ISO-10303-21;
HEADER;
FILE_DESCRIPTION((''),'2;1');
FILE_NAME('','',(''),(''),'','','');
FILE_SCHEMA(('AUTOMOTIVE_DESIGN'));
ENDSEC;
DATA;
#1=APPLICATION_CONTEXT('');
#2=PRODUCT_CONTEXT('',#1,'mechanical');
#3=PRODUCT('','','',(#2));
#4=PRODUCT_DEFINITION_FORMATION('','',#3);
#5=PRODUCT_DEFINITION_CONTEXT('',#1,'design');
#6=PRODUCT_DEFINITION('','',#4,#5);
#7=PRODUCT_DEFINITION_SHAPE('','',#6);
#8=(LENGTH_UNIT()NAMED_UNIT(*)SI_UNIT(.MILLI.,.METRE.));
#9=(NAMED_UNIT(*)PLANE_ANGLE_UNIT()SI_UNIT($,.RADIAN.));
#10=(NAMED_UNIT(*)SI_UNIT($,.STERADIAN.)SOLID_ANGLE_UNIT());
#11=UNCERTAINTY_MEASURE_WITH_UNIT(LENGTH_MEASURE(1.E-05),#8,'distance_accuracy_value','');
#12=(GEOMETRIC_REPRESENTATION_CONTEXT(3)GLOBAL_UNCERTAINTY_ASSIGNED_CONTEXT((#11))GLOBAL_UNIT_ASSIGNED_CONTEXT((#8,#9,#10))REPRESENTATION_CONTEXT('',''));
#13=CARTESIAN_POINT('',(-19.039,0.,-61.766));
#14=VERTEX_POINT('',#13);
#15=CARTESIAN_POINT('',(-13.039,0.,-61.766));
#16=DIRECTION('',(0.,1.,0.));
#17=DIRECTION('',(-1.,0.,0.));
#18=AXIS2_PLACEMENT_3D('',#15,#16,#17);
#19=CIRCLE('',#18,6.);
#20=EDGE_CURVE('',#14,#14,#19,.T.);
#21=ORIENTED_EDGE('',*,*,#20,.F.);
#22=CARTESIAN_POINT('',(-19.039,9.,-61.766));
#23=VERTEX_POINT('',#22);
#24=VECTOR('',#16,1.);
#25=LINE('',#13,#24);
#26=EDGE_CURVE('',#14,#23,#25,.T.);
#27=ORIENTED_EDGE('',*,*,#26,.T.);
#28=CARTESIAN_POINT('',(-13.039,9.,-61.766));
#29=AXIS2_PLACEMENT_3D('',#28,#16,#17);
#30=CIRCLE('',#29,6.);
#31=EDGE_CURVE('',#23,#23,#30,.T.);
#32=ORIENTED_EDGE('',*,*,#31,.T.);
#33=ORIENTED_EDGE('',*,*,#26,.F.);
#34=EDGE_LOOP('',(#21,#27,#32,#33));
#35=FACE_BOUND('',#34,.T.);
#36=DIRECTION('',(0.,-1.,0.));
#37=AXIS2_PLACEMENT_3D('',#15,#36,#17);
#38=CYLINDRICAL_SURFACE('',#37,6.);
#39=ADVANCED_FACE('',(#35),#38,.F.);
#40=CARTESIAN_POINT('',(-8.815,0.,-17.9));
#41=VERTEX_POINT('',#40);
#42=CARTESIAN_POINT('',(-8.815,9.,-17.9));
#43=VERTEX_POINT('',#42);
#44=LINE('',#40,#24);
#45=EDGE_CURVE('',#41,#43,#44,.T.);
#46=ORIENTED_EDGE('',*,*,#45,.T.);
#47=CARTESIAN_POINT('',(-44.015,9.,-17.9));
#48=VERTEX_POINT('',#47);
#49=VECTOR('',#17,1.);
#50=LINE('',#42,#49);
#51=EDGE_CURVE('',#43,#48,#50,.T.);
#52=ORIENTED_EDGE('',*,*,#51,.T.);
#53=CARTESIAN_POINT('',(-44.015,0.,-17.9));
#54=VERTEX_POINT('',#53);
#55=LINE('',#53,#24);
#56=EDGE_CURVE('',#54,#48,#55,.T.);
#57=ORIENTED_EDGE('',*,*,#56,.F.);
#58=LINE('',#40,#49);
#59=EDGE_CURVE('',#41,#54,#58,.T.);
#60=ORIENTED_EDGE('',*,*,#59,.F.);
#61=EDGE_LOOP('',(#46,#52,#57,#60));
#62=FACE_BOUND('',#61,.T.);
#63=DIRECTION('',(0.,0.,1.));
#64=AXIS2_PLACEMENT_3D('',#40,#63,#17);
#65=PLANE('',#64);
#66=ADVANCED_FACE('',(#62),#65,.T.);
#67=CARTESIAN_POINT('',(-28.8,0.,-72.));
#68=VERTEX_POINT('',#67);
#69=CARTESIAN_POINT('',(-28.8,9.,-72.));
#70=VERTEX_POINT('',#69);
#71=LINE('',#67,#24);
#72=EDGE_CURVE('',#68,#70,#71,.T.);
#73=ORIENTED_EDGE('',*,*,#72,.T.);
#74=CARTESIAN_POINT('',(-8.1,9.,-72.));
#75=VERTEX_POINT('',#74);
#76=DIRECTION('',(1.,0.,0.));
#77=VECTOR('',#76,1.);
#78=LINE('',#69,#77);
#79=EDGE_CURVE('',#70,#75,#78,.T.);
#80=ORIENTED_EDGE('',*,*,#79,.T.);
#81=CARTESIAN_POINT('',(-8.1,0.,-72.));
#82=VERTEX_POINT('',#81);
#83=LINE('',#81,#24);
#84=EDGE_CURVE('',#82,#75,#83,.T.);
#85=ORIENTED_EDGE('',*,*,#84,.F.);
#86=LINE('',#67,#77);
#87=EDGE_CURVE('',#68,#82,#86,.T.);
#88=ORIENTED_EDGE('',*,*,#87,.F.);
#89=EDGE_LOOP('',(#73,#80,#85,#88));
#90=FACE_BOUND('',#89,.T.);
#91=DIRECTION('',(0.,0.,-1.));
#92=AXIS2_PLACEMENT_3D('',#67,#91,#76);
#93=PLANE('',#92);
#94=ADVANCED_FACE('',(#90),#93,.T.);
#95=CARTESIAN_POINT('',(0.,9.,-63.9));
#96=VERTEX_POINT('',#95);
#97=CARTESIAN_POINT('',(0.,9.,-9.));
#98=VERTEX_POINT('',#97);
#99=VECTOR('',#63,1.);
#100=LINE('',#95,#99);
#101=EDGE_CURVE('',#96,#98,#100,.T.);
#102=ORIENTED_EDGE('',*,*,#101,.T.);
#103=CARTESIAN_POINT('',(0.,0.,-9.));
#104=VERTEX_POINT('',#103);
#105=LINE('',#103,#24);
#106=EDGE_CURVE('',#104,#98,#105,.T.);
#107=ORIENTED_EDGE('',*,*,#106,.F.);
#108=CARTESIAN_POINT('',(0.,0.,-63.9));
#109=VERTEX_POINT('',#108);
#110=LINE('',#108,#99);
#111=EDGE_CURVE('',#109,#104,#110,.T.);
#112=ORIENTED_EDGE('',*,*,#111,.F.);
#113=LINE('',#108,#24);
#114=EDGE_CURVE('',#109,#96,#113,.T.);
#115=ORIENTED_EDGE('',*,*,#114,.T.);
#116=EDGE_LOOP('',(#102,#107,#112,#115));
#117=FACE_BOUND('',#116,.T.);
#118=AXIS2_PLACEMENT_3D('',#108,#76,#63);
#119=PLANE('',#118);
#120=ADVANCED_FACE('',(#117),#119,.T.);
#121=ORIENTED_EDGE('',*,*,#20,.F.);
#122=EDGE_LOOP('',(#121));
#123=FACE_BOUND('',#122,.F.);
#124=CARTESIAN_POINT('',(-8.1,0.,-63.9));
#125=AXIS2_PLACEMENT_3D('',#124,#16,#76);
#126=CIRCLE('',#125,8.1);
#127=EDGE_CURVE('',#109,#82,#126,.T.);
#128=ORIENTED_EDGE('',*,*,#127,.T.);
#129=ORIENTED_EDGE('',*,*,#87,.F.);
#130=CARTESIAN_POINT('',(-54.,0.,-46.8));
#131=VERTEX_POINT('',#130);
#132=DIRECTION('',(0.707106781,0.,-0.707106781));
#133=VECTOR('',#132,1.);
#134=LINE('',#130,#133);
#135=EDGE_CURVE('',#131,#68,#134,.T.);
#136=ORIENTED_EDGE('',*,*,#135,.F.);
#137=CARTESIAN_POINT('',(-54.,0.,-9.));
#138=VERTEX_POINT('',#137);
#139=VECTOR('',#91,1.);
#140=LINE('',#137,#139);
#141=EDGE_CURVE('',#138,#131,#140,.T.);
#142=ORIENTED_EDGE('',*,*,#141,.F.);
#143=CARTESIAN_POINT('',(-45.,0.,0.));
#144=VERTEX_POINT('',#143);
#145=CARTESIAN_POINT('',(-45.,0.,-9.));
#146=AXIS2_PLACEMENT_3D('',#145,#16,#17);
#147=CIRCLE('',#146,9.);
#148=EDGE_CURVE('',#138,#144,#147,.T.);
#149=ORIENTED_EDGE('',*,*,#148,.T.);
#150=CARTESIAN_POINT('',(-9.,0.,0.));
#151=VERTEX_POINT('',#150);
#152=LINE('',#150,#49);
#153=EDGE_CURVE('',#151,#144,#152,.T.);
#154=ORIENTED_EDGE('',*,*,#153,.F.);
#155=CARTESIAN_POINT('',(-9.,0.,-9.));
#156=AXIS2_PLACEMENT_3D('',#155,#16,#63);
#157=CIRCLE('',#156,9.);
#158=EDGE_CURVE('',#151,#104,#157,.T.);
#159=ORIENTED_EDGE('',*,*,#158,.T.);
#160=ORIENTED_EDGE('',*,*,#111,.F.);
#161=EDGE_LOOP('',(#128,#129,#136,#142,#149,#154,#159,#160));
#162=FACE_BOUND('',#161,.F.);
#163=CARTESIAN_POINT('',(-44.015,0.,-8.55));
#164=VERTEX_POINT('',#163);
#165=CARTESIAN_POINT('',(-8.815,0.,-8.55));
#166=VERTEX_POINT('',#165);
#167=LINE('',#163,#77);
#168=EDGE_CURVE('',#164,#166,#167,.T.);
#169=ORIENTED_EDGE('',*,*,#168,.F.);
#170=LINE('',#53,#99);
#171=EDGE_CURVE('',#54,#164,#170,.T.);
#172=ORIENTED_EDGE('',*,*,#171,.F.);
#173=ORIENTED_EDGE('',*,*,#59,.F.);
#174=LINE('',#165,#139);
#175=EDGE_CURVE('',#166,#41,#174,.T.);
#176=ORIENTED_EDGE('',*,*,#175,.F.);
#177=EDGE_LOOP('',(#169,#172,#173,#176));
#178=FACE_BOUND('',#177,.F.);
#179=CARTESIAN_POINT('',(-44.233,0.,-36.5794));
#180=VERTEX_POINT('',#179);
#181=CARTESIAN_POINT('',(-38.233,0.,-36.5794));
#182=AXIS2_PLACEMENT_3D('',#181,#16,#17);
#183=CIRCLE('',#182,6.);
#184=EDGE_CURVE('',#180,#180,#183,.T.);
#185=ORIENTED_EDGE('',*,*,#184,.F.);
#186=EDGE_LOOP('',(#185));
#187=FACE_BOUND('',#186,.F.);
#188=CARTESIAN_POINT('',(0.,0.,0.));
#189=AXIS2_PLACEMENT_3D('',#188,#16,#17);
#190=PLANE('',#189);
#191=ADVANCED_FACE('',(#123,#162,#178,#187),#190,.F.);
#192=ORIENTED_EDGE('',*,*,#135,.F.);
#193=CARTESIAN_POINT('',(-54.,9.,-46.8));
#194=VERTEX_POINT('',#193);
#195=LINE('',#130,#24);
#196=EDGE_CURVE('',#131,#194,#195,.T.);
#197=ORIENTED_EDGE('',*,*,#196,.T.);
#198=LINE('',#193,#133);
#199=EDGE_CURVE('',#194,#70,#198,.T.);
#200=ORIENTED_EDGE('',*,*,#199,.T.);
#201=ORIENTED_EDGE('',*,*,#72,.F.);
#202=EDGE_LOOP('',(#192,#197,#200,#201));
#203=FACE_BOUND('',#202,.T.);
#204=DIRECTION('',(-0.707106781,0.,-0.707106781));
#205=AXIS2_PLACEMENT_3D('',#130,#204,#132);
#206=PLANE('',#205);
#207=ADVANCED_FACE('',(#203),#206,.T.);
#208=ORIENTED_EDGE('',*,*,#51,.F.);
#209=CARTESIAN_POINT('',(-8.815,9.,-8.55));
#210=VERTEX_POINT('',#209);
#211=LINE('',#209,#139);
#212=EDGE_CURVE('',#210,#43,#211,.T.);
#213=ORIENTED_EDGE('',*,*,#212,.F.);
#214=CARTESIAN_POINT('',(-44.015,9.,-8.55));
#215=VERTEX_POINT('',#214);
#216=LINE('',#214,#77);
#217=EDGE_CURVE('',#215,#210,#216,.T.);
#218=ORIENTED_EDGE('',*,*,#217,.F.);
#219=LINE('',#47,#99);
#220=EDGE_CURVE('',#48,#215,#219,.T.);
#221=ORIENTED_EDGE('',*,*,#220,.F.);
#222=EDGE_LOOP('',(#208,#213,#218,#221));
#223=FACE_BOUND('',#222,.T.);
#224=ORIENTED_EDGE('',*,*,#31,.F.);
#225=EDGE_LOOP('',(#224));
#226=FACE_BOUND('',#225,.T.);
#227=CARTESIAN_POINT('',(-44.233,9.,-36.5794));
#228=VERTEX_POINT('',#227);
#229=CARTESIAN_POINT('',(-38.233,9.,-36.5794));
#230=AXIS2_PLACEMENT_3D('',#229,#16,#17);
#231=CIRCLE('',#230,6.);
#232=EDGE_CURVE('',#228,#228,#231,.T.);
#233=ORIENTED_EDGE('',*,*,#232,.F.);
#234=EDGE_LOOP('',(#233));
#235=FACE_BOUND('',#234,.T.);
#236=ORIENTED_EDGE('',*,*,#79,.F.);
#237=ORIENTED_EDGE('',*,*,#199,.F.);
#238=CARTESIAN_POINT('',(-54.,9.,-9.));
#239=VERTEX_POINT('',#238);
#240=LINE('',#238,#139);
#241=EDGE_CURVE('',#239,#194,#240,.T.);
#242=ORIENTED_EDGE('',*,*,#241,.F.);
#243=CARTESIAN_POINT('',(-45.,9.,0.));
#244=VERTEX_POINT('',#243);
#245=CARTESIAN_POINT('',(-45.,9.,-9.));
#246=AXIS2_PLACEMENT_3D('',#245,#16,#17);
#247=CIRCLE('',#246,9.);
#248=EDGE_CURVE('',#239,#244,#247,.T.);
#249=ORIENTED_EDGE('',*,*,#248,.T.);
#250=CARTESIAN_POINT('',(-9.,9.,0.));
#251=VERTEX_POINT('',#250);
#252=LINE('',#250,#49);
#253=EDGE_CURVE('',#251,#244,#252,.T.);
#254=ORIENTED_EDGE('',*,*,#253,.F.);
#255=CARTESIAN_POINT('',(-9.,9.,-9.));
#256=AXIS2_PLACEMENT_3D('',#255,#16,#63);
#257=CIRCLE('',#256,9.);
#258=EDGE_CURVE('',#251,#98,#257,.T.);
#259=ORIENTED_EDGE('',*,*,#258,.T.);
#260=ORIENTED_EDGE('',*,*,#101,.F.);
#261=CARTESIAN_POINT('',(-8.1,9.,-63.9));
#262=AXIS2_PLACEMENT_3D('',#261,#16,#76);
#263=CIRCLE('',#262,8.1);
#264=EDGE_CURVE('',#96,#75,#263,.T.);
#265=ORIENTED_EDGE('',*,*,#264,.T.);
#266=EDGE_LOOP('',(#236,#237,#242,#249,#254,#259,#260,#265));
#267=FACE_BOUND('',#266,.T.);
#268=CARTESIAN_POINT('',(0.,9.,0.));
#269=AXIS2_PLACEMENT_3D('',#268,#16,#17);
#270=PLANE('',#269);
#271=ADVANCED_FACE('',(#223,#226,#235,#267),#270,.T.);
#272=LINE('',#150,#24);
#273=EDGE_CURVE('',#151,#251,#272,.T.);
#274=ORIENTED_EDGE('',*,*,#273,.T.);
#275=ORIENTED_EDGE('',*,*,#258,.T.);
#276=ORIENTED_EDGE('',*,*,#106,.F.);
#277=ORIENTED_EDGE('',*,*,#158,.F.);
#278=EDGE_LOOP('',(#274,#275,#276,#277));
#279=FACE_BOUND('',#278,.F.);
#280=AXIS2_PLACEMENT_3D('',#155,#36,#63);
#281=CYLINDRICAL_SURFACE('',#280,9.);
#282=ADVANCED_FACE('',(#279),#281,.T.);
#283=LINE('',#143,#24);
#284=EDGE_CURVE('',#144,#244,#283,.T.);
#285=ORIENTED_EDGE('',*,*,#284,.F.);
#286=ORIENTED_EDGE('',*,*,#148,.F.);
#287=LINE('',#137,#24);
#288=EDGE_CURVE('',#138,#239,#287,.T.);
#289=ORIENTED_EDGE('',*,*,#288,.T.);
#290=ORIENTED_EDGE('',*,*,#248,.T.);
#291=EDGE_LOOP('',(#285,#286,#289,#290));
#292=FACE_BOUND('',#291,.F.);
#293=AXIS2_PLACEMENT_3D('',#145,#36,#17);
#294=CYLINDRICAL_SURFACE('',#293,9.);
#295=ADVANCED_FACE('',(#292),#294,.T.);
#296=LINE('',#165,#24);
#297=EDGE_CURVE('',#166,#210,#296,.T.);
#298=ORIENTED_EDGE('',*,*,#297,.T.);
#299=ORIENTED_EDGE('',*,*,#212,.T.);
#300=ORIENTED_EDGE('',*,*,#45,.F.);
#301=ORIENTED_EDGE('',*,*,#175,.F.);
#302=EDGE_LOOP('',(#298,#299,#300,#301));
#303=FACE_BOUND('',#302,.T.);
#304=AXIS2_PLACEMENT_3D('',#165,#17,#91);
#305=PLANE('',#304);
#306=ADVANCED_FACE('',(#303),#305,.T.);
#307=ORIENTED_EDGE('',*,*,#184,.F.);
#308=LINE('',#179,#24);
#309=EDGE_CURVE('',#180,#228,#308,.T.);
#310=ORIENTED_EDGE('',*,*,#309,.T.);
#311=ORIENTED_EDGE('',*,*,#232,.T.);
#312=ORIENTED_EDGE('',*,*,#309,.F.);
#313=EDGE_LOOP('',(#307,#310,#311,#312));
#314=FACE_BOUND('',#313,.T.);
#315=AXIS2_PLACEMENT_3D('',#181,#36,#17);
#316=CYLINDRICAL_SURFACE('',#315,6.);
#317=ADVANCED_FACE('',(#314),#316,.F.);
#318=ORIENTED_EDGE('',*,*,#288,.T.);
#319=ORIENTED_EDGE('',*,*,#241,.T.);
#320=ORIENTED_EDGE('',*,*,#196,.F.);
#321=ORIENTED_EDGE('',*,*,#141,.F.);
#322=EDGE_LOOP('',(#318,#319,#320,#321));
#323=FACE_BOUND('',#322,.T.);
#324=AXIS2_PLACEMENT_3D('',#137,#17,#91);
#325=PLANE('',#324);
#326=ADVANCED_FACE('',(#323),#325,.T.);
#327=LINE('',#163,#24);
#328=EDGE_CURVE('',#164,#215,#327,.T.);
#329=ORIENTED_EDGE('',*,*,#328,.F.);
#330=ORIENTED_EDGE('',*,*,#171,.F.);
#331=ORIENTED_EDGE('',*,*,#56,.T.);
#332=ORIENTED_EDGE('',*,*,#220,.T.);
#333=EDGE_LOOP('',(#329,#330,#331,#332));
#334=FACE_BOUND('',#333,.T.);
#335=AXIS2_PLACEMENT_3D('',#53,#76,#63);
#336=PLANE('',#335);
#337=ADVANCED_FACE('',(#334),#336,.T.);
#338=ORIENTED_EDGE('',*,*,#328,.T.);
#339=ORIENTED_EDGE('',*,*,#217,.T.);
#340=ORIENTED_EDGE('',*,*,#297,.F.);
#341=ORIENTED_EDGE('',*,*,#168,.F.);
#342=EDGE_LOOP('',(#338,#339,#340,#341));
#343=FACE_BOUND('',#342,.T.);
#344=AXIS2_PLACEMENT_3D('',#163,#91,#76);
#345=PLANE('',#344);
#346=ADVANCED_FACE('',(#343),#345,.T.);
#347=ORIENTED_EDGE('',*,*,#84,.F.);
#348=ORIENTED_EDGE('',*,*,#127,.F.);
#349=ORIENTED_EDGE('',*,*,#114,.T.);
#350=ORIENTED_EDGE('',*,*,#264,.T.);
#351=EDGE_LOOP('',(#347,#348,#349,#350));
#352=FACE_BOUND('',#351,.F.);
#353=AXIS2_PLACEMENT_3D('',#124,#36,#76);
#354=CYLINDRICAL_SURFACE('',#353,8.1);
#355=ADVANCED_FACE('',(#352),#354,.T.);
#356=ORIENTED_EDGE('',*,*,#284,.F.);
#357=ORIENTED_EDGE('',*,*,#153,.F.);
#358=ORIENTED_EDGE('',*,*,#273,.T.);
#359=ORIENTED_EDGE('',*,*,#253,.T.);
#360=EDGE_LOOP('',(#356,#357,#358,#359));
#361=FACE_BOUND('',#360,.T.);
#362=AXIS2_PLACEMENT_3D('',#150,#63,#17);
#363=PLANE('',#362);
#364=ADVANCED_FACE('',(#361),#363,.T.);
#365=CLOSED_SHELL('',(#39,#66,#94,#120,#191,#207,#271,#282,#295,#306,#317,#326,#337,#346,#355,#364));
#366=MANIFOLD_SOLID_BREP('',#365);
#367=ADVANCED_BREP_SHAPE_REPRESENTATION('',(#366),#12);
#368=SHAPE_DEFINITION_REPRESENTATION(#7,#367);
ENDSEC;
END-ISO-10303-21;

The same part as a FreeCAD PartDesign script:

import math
import FreeCAD as App
import Part
import Sketcher

V = App.Vector
Q = App.Units.Quantity


def add_polygon(sketch, points):
    """Adds a closed chain of lines whose ends are joined by coincident constraints."""
    first, n = sketch.GeometryCount, len(points)
    for a, b in zip(points, points[1:] + points[:1]):
        sketch.addGeometry(Part.LineSegment(App.Vector(*a, 0), App.Vector(*b, 0)), False)
    for i in range(n):
        sketch.addConstraint(Sketcher.Constraint("Coincident", first + i, 2, first + (i + 1) % n, 1))

doc = App.newDocument("Part")
body = doc.addObject("PartDesign::Body", "Body")

# Sketch on XZ plane
sketch1 = doc.addObject("Sketcher::SketchObject", "Sketch")
body.addObject(sketch1)
sketch1.AttachmentSupport = (doc.XZ_Plane, [""])
sketch1.MapMode = "FlatFace"
sketch1.addGeometry(Part.LineSegment(V(-45, 0, 0), V(-9, 0, 0)), False)  # 0
sketch1.addGeometry(Part.ArcOfCircle(Part.Circle(V(-9, -9, 0), V(0, 0, 1), 9), math.radians(0), math.radians(90)), False)  # 1
sketch1.addGeometry(Part.LineSegment(V(0, -9, 0), V(0, -64, 0)), False)  # 2
sketch1.addGeometry(Part.ArcOfCircle(Part.Circle(V(-8, -64, 0), V(0, 0, 1), 8), math.radians(-90), math.radians(0)), False)  # 3
sketch1.addGeometry(Part.LineSegment(V(-8, -72, 0), V(-29, -72, 0)), False)  # 4
sketch1.addGeometry(Part.LineSegment(V(-29, -72, 0), V(-54, -47, 0)), False)  # 5
sketch1.addGeometry(Part.LineSegment(V(-54, -47, 0), V(-54, -9, 0)), False)  # 6
sketch1.addGeometry(Part.ArcOfCircle(Part.Circle(V(-45, -9, 0), V(0, 0, 1), 9), math.radians(90), math.radians(180)), False)  # 7
sketch1.addGeometry(Part.Circle(V(-13, -62, 0), V(0, 0, 1), 6), False)  # 8
sketch1.addGeometry(Part.Circle(V(-38, -37, 0), V(0, 0, 1), 6), False)  # 9
add_polygon(sketch1, [(-9, -9), (-44, -9), (-44, -18), (-9, -18)])  # lines 10-13
sketch1.addConstraint([
    Sketcher.Constraint("Tangent", 0, 2, 1, 2),
    Sketcher.Constraint("Tangent", 1, 1, 2, 1),
    Sketcher.Constraint("Tangent", 2, 2, 3, 2),
    Sketcher.Constraint("Tangent", 3, 1, 4, 1),
    Sketcher.Constraint("Coincident", 4, 2, 5, 1),
    Sketcher.Constraint("Coincident", 5, 2, 6, 1),
    Sketcher.Constraint("Tangent", 6, 2, 7, 2),
    Sketcher.Constraint("Tangent", 7, 1, 0, 1),
    Sketcher.Constraint("Horizontal", 0),
    Sketcher.Constraint("Vertical", 2),
    Sketcher.Constraint("Horizontal", 4),
    Sketcher.Constraint("Vertical", 6),
    Sketcher.Constraint("Horizontal", 10),
    Sketcher.Constraint("Vertical", 11),
    Sketcher.Constraint("Horizontal", 12),
    Sketcher.Constraint("Vertical", 13),
    Sketcher.Constraint("Equal", 1, 7),
    Sketcher.Constraint("Equal", 8, 9),
    Sketcher.Constraint("PointOnObject", 0, 2, -1),
    Sketcher.Constraint("PointOnObject", 1, 1, -2),
    Sketcher.Constraint("Diameter", 8, Q("12 mm")),
    Sketcher.Constraint("Radius", 1, Q("9 mm")),
    Sketcher.Constraint("Radius", 3, Q("8.1 mm")),
    Sketcher.Constraint("DistanceX", 0, 1, 0, 2, Q("36 mm")),
    Sketcher.Constraint("DistanceX", 4, 2, 4, 1, Q("20.7 mm")),
    Sketcher.Constraint("DistanceX", 10, 2, 10, 1, Q("35.2 mm")),
    Sketcher.Constraint("DistanceY", 2, 2, 2, 1, Q("54.9 mm")),
    Sketcher.Constraint("DistanceY", 6, 1, 6, 2, Q("37.8 mm")),
    Sketcher.Constraint("DistanceY", 11, 2, 11, 1, Q("9.35 mm")),
    Sketcher.Constraint("DistanceY", 10, 2, -1, 1, Q("8.55 mm")),
    Sketcher.Constraint("DistanceX", 8, 3, -1, 1, Q("13.039 mm")),
    Sketcher.Constraint("DistanceX", 9, 3, -1, 1, Q("38.233 mm")),
    Sketcher.Constraint("DistanceX", 12, 2, -1, 1, Q("8.815 mm")),
    Sketcher.Constraint("DistanceY", 3, 1, 8, 3, Q("10.234 mm")),
    Sketcher.Constraint("DistanceY", 9, 3, -1, 1, Q("36.5794 mm")),
])
pad1 = doc.addObject("PartDesign::Pad", "Pad")
body.addObject(pad1)
pad1.Profile = sketch1
pad1.Length = 9
pad1.Reversed = True

doc.recompute()
